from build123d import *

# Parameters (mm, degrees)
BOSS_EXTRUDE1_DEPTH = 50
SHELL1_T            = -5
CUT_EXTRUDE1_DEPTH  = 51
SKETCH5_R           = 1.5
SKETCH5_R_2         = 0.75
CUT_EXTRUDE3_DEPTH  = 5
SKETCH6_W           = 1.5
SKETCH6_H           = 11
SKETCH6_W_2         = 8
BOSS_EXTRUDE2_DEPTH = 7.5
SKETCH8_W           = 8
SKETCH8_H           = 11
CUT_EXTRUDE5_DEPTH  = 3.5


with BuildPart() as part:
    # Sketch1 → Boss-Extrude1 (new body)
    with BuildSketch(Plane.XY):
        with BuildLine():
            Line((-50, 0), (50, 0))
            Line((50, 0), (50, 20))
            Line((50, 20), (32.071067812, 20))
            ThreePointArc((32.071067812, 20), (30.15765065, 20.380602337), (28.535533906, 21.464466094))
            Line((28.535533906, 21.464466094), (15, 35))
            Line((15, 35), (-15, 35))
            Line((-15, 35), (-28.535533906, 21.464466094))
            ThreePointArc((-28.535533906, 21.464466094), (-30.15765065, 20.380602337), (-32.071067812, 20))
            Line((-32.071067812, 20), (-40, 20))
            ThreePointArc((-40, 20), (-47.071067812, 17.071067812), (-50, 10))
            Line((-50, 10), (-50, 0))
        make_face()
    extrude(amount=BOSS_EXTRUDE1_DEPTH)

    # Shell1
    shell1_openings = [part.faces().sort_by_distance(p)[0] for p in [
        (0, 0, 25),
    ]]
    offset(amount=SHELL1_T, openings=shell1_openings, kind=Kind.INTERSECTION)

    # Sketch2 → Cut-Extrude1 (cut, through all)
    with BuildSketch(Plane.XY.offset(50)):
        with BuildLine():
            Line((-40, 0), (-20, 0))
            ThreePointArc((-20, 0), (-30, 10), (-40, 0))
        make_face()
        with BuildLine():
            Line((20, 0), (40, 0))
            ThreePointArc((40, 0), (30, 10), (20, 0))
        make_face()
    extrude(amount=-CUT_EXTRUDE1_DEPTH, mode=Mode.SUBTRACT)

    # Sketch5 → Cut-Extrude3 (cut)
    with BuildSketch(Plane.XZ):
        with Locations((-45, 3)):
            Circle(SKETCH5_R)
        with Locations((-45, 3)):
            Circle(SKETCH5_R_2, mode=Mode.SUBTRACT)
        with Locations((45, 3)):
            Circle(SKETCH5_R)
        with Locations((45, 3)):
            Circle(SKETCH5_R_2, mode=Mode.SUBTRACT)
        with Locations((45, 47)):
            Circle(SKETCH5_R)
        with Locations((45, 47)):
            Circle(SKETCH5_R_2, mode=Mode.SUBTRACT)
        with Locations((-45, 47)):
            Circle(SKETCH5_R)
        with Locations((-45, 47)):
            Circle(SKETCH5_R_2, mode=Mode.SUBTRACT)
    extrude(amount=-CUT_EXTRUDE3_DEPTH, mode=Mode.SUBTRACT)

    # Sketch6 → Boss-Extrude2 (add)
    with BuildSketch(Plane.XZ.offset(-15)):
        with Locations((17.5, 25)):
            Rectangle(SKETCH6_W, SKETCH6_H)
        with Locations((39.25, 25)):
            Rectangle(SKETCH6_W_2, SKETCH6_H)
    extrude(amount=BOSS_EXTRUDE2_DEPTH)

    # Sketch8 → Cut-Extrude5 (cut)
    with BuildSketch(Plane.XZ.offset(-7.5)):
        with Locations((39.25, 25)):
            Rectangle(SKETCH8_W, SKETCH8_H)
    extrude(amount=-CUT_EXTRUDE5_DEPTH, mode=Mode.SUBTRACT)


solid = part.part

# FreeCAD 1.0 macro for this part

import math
import FreeCAD as App
import Part
import Sketcher
Q = App.Units.Quantity


def faces_at(feature, points):
    """Names of the faces that lie closest to the given points."""
    faces = feature.Shape.Faces
    near = lambda p: min(range(len(faces)), key=lambda i: faces[i].distToShape(Part.Vertex(*p))[0])
    return sorted({f"Face{near(p) + 1}" for p in points})


def add_polygon(sketch, points):
    """Adds a closed chain of lines whose ends are joined by coincident constraints."""
    first, n = sketch.GeometryCount, len(points)
    for a, b in zip(points, points[1:] + points[:1]):
        sketch.addGeometry(Part.LineSegment(App.Vector(*a, 0), App.Vector(*b, 0)), False)
    for i in range(n):
        sketch.addConstraint(Sketcher.Constraint("Coincident", first + i, 2, first + (i + 1) % n, 1))

doc = App.newDocument("Part")
body = doc.addObject("PartDesign::Body", "Body")
body.AllowCompound = True

# Sketch on XY plane
sketch1 = body.newObject("Sketcher::SketchObject", "Sketch")
sketch1.AttachmentSupport = (doc.getObject("XY_Plane"), [""])
sketch1.MapMode = "FlatFace"
sketch1.addGeometry(Part.LineSegment(App.Vector(-50, 0, 0), App.Vector(50, 0, 0)), False)
sketch1.addGeometry(Part.LineSegment(App.Vector(50, 0, 0), App.Vector(50, 20, 0)), False)
sketch1.addGeometry(Part.LineSegment(App.Vector(50, 20, 0), App.Vector(32.071068, 20, 0)), False)
sketch1.addGeometry(Part.ArcOfCircle(Part.Circle(App.Vector(32.071068, 25, 0), App.Vector(0, 0, 1), 5), math.radians(-135), math.radians(-90)), False)
sketch1.addGeometry(Part.LineSegment(App.Vector(28.535534, 21.464466, 0), App.Vector(15, 35, 0)), False)
sketch1.addGeometry(Part.LineSegment(App.Vector(15, 35, 0), App.Vector(-15, 35, 0)), False)
sketch1.addGeometry(Part.LineSegment(App.Vector(-15, 35, 0), App.Vector(-28.535534, 21.464466, 0)), False)
sketch1.addGeometry(Part.ArcOfCircle(Part.Circle(App.Vector(-32.071068, 25, 0), App.Vector(0, 0, 1), 5), math.radians(-90), math.radians(-45)), False)
sketch1.addGeometry(Part.LineSegment(App.Vector(-32.071068, 20, 0), App.Vector(-40, 20, 0)), False)
sketch1.addGeometry(Part.ArcOfCircle(Part.Circle(App.Vector(-40, 10, 0), App.Vector(0, 0, 1), 10), math.radians(90), math.radians(180)), False)
sketch1.addGeometry(Part.LineSegment(App.Vector(-50, 10, 0), App.Vector(-50, 0, 0)), False)
sketch1.addConstraint(Sketcher.Constraint("Coincident", 0, 2, 1, 1))
sketch1.addConstraint(Sketcher.Constraint("Coincident", 1, 2, 2, 1))
sketch1.addConstraint(Sketcher.Constraint("Tangent", 2, 2, 3, 2))
sketch1.addConstraint(Sketcher.Constraint("Tangent", 3, 1, 4, 1))
sketch1.addConstraint(Sketcher.Constraint("Coincident", 4, 2, 5, 1))
sketch1.addConstraint(Sketcher.Constraint("Coincident", 5, 2, 6, 1))
sketch1.addConstraint(Sketcher.Constraint("Tangent", 6, 2, 7, 2))
sketch1.addConstraint(Sketcher.Constraint("Tangent", 7, 1, 8, 1))
sketch1.addConstraint(Sketcher.Constraint("Tangent", 8, 2, 9, 1))
sketch1.addConstraint(Sketcher.Constraint("Tangent", 9, 2, 10, 1))
sketch1.addConstraint(Sketcher.Constraint("Coincident", 10, 2, 0, 1))
sketch1.addConstraint(Sketcher.Constraint("Horizontal", 0))
sketch1.addConstraint(Sketcher.Constraint("Vertical", 1))
sketch1.addConstraint(Sketcher.Constraint("Horizontal", 2))
sketch1.addConstraint(Sketcher.Constraint("Horizontal", 5))
sketch1.addConstraint(Sketcher.Constraint("Horizontal", 8))
sketch1.addConstraint(Sketcher.Constraint("Vertical", 10))
sketch1.addConstraint(Sketcher.Constraint("Equal", 3, 7))
sketch1.addConstraint(Sketcher.Constraint("Symmetric", 0, 2, 10, 2, -1, 1))
sketch1.addConstraint(Sketcher.Constraint("Symmetric", 3, 3, 7, 3, -2))
sketch1.addConstraint(Sketcher.Constraint("Perpendicular", 4, 6))
sketch1.addConstraint(Sketcher.Constraint("Horizontal", 3, 1, 6, 2))
sketch1.addConstraint(Sketcher.Constraint("Radius", 3, Q("5 mm")))
sketch1.addConstraint(Sketcher.Constraint("Radius", 9, Q("10 mm")))
sketch1.addConstraint(Sketcher.Constraint("DistanceX", 0, 1, 0, 2, Q("100 mm")))
sketch1.addConstraint(Sketcher.Constraint("DistanceX", 5, 2, 5, 1, Q("30 mm")))
sketch1.addConstraint(Sketcher.Constraint("DistanceY", 1, 1, 1, 2, Q("20 mm")))
sketch1.addConstraint(Sketcher.Constraint("DistanceY", -1, 1, 4, 2, Q("35 mm")))
pad1 = body.newObject("PartDesign::Pad", "Pad")
pad1.Profile = sketch1
pad1.Length = 50
doc.recompute()

thickness = body.newObject("PartDesign::Thickness", "Thickness")
thickness.Base = (pad1, faces_at(pad1, [(0, 0, 25)]))
thickness.Value = 5
thickness.Reversed = True
thickness.Join = "Intersection"

# Sketch on XY plane
sketch2 = body.newObject("Sketcher::SketchObject", "Sketch001")
sketch2.AttachmentSupport = (doc.getObject("XY_Plane"), [""])
sketch2.MapMode = "FlatFace"
sketch2.AttachmentOffset = App.Placement(App.Vector(0, 0, 50), App.Rotation())
sketch2.addGeometry(Part.LineSegment(App.Vector(-40, 0, 0), App.Vector(-20, 0, 0)), False)
sketch2.addGeometry(Part.ArcOfCircle(Part.Circle(App.Vector(-30, 0, 0), App.Vector(0, 0, 1), 10), math.radians(0), math.radians(180)), False)
sketch2.addGeometry(Part.LineSegment(App.Vector(20, 0, 0), App.Vector(40, 0, 0)), False)
sketch2.addGeometry(Part.ArcOfCircle(Part.Circle(App.Vector(30, 0, 0), App.Vector(0, 0, 1), 10), math.radians(0), math.radians(180)), False)
sketch2.addConstraint(Sketcher.Constraint("Coincident", 0, 1, 1, 2))
sketch2.addConstraint(Sketcher.Constraint("Coincident", 1, 1, 0, 2))
sketch2.addConstraint(Sketcher.Constraint("Coincident", 2, 1, 3, 2))
sketch2.addConstraint(Sketcher.Constraint("Coincident", 3, 1, 2, 2))
sketch2.addConstraint(Sketcher.Constraint("Horizontal", 0))
sketch2.addConstraint(Sketcher.Constraint("Horizontal", 2))
sketch2.addConstraint(Sketcher.Constraint("Equal", 1, 3))
sketch2.addConstraint(Sketcher.Constraint("Symmetric", 1, 3, 3, 3, -1, 1))
sketch2.addConstraint(Sketcher.Constraint("PointOnObject", 1, 3, -1))
sketch2.addConstraint(Sketcher.Constraint("PointOnObject", 0, 1, -1))
sketch2.addConstraint(Sketcher.Constraint("PointOnObject", 2, 1, -1))
sketch2.addConstraint(Sketcher.Constraint("Radius", 1, Q("10 mm")))
sketch2.addConstraint(Sketcher.Constraint("DistanceX", 1, 3, -1, 1, Q("30 mm")))
pocket1 = body.newObject("PartDesign::Pocket", "Pocket")
pocket1.Profile = sketch2
pocket1.Type = "ThroughAll"

# Sketch on XZ plane
sketch3 = body.newObject("Sketcher::SketchObject", "Sketch002")
sketch3.AttachmentSupport = (doc.getObject("XZ_Plane"), [""])
sketch3.MapMode = "FlatFace"
sketch3.addGeometry(Part.Circle(App.Vector(-45, 3, 0), App.Vector(0, 0, 1), 1.5), False)
sketch3.addGeometry(Part.Circle(App.Vector(-45, 3, 0), App.Vector(0, 0, 1), 0.75), False)
sketch3.addGeometry(Part.Circle(App.Vector(45, 3, 0), App.Vector(0, 0, 1), 1.5), False)
sketch3.addGeometry(Part.Circle(App.Vector(45, 3, 0), App.Vector(0, 0, 1), 0.75), False)
sketch3.addGeometry(Part.Circle(App.Vector(45, 47, 0), App.Vector(0, 0, 1), 1.5), False)
sketch3.addGeometry(Part.Circle(App.Vector(45, 47, 0), App.Vector(0, 0, 1), 0.75), False)
sketch3.addGeometry(Part.Circle(App.Vector(-45, 47, 0), App.Vector(0, 0, 1), 1.5), False)
sketch3.addGeometry(Part.Circle(App.Vector(-45, 47, 0), App.Vector(0, 0, 1), 0.75), False)
sketch3.addConstraint(Sketcher.Constraint("Coincident", 1, 3, 0, 3))
sketch3.addConstraint(Sketcher.Constraint("Coincident", 3, 3, 2, 3))
sketch3.addConstraint(Sketcher.Constraint("Coincident", 5, 3, 4, 3))
sketch3.addConstraint(Sketcher.Constraint("Coincident", 7, 3, 6, 3))
sketch3.addConstraint(Sketcher.Constraint("Equal", 0, 2))
sketch3.addConstraint(Sketcher.Constraint("Equal", 1, 3))
sketch3.addConstraint(Sketcher.Constraint("Equal", 2, 4))
sketch3.addConstraint(Sketcher.Constraint("Equal", 3, 5))
sketch3.addConstraint(Sketcher.Constraint("Equal", 4, 6))
sketch3.addConstraint(Sketcher.Constraint("Equal", 5, 7))
sketch3.addConstraint(Sketcher.Constraint("Symmetric", 0, 3, 2, 3, -2))
sketch3.addConstraint(Sketcher.Constraint("Symmetric", 4, 3, 6, 3, -2))
sketch3.addConstraint(Sketcher.Constraint("Vertical", 3, 3, 4, 3))
sketch3.addConstraint(Sketcher.Constraint("Diameter", 0, Q("3 mm")))
sketch3.addConstraint(Sketcher.Constraint("Diameter", 1, Q("1.5 mm")))
sketch3.addConstraint(Sketcher.Constraint("DistanceX", 0, 3, -1, 1, Q("45 mm")))
sketch3.addConstraint(Sketcher.Constraint("DistanceY", -1, 1, 0, 3, Q("3 mm")))
sketch3.addConstraint(Sketcher.Constraint("DistanceY", -1, 1, 4, 3, Q("47 mm")))
pocket2 = body.newObject("PartDesign::Pocket", "Pocket001")
pocket2.Profile = sketch3
pocket2.Length = 5

# Sketch on XZ plane
sketch4 = body.newObject("Sketcher::SketchObject", "Sketch003")
sketch4.AttachmentSupport = (doc.getObject("XZ_Plane"), [""])
sketch4.MapMode = "FlatFace"
sketch4.AttachmentOffset = App.Placement(App.Vector(0, 0, -15), App.Rotation())
add_polygon(sketch4, [(16.75, 30.5), (16.75, 19.5), (18.25, 19.5), (18.25, 30.5)])  # lines 0-3
add_polygon(sketch4, [(35.25, 30.5), (35.25, 19.5), (43.25, 19.5), (43.25, 30.5)])  # lines 4-7
sketch4.addConstraint(Sketcher.Constraint("Vertical", 0))
sketch4.addConstraint(Sketcher.Constraint("Horizontal", 1))
sketch4.addConstraint(Sketcher.Constraint("Vertical", 2))
sketch4.addConstraint(Sketcher.Constraint("Horizontal", 3))
sketch4.addConstraint(Sketcher.Constraint("Vertical", 4))
sketch4.addConstraint(Sketcher.Constraint("Horizontal", 5))
sketch4.addConstraint(Sketcher.Constraint("Vertical", 6))
sketch4.addConstraint(Sketcher.Constraint("Horizontal", 7))
sketch4.addConstraint(Sketcher.Constraint("Horizontal", 1, 2, 4, 2))
sketch4.addConstraint(Sketcher.Constraint("Horizontal", 3, 2, 6, 2))
sketch4.addConstraint(Sketcher.Constraint("DistanceX", 5, 1, 5, 2, Q("8 mm")))
sketch4.addConstraint(Sketcher.Constraint("DistanceY", 0, 2, 0, 1, Q("11 mm")))
sketch4.addConstraint(Sketcher.Constraint("DistanceX", 1, 1, 1, 2, Q("1.5 mm")))
sketch4.addConstraint(Sketcher.Constraint("DistanceX", 1, 2, 4, 2, Q("17 mm")))
sketch4.addConstraint(Sketcher.Constraint("DistanceY", -1, 1, 0, 2, Q("19.5 mm")))
sketch4.addConstraint(Sketcher.Constraint("DistanceX", -1, 1, 0, 2, Q("16.75 mm")))
pad2 = body.newObject("PartDesign::Pad", "Pad001")
pad2.Profile = sketch4
pad2.Length = 7.5

# Sketch on XZ plane
sketch5 = body.newObject("Sketcher::SketchObject", "Sketch004")
sketch5.AttachmentSupport = (doc.getObject("XZ_Plane"), [""])
sketch5.MapMode = "FlatFace"
sketch5.AttachmentOffset = App.Placement(App.Vector(0, 0, -7.5), App.Rotation())
add_polygon(sketch5, [(35.25, 30.5), (35.25, 19.5), (43.25, 19.5), (43.25, 30.5)])  # lines 0-3
sketch5.addConstraint(Sketcher.Constraint("Vertical", 0))
sketch5.addConstraint(Sketcher.Constraint("Horizontal", 1))
sketch5.addConstraint(Sketcher.Constraint("Vertical", 2))
sketch5.addConstraint(Sketcher.Constraint("Horizontal", 3))
sketch5.addConstraint(Sketcher.Constraint("DistanceX", 1, 1, 1, 2, Q("8 mm")))
sketch5.addConstraint(Sketcher.Constraint("DistanceY", 0, 2, 0, 1, Q("11 mm")))
sketch5.addConstraint(Sketcher.Constraint("DistanceY", -1, 1, 0, 2, Q("19.5 mm")))
sketch5.addConstraint(Sketcher.Constraint("DistanceX", -1, 1, 0, 2, Q("35.25 mm")))
pocket3 = body.newObject("PartDesign::Pocket", "Pocket002")
pocket3.Profile = sketch5
pocket3.Length = 3.5

doc.recompute()
